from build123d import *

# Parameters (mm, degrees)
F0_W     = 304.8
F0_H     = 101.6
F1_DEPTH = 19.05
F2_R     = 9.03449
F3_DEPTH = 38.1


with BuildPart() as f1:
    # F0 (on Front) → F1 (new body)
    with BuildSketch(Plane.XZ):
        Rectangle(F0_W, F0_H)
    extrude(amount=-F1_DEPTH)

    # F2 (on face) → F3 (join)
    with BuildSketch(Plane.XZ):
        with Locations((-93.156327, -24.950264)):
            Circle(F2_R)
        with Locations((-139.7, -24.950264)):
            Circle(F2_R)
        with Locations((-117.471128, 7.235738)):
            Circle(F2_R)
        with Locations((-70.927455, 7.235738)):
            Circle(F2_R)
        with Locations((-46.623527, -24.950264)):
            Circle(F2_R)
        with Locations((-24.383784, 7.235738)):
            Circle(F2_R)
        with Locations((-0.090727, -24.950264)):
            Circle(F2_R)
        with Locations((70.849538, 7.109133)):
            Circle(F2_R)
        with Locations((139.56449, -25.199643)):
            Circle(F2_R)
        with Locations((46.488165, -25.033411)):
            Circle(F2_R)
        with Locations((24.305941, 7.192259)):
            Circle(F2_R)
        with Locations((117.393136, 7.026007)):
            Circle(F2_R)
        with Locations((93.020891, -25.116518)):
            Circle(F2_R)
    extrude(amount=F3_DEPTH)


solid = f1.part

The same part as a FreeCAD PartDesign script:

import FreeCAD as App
import Part
import Sketcher
from FreeCAD import Vector
Q = App.Units.Quantity

doc = App.newDocument("Part")
params = doc.addObject("Spreadsheet::Sheet", "Params")
for row, (alias, value) in enumerate([
    ("sketch1_width", "12 in"),
    ("sketch1_height", "4 in"),
    ("pad1_length", "0.75 in"),
    ("pad2_length", "1.5 in"),
], start=1):
    params.set(f"A{row}", alias)
    params.set(f"B{row}", "=" + value)
    params.setAlias(f"B{row}", alias)

body = doc.addObject("PartDesign::Body", "Body")

sketch1 = body.newObject("Sketcher::SketchObject", "Sketch")
sketch1.AttachmentSupport = (doc.getObject("XZ_Plane"), [""])
sketch1.MapMode = "FlatFace"
sketch1.addGeometry([
    Part.LineSegment(Vector(-152.4, 50.8, 0), Vector(-152.4, -50.8, 0)),
    Part.LineSegment(Vector(-152.4, -50.8, 0), Vector(152.4, -50.8, 0)),
    Part.LineSegment(Vector(152.4, -50.8, 0), Vector(152.4, 50.8, 0)),
    Part.LineSegment(Vector(152.4, 50.8, 0), Vector(-152.4, 50.8, 0)),
], False)
sketch1.addConstraint([
    Sketcher.Constraint("Coincident", 0, 2, 1, 1),
    Sketcher.Constraint("Coincident", 1, 2, 2, 1),
    Sketcher.Constraint("Coincident", 2, 2, 3, 1),
    Sketcher.Constraint("Coincident", 3, 2, 0, 1),
    Sketcher.Constraint("Vertical", 0),
    Sketcher.Constraint("Horizontal", 1),
    Sketcher.Constraint("Vertical", 2),
    Sketcher.Constraint("Horizontal", 3),
    Sketcher.Constraint("Symmetric", 0, 2, 2, 2, -1, 1),
    Sketcher.Constraint("DistanceX", 1, 1, 1, 2, Q("12 in")),
    Sketcher.Constraint("DistanceY", 0, 2, 0, 1, Q("4 in")),
])
sketch1.setExpression("Constraints[9]", "Params.sketch1_width")
sketch1.setExpression("Constraints[10]", "Params.sketch1_height")
pad1 = body.newObject("PartDesign::Pad", "Pad")
pad1.Profile = sketch1
pad1.setExpression("Length", "Params.pad1_length")
pad1.Reversed = True

sketch2 = body.newObject("Sketcher::SketchObject", "Sketch001")
sketch2.AttachmentSupport = (doc.getObject("XZ_Plane"), [""])
sketch2.MapMode = "FlatFace"
sketch2.addGeometry([
    Part.Circle(Vector(-93.156327, -24.950264, 0), Vector(0, 0, 1), 9.03449),
    Part.Circle(Vector(-139.7, -24.950264, 0), Vector(0, 0, 1), 9.03449),
    Part.Circle(Vector(-117.471128, 7.235738, 0), Vector(0, 0, 1), 9.03449),
    Part.Circle(Vector(-70.927455, 7.235738, 0), Vector(0, 0, 1), 9.03449),
    Part.Circle(Vector(-46.623527, -24.950264, 0), Vector(0, 0, 1), 9.03449),
    Part.Circle(Vector(-24.383784, 7.235738, 0), Vector(0, 0, 1), 9.03449),
    Part.Circle(Vector(-0.090727, -24.950264, 0), Vector(0, 0, 1), 9.03449),
    Part.Circle(Vector(70.849538, 7.109133, 0), Vector(0, 0, 1), 9.03449),
    Part.Circle(Vector(139.56449, -25.199643, 0), Vector(0, 0, 1), 9.03449),
    Part.Circle(Vector(46.488165, -25.033411, 0), Vector(0, 0, 1), 9.03449),
    Part.Circle(Vector(24.305941, 7.192259, 0), Vector(0, 0, 1), 9.03449),
    Part.Circle(Vector(117.393136, 7.026007, 0), Vector(0, 0, 1), 9.03449),
    Part.Circle(Vector(93.020891, -25.116518, 0), Vector(0, 0, 1), 9.03449),
], False)
sketch2.addConstraint([
    Sketcher.Constraint("Equal", 0, 1),
    Sketcher.Constraint("Equal", 1, 2),
    Sketcher.Constraint("Equal", 2, 3),
    Sketcher.Constraint("Equal", 3, 4),
    Sketcher.Constraint("Equal", 4, 5),
    Sketcher.Constraint("Equal", 5, 6),
    Sketcher.Constraint("Equal", 6, 7),
    Sketcher.Constraint("Equal", 7, 8),
    Sketcher.Constraint("Equal", 8, 9),
    Sketcher.Constraint("Equal", 9, 10),
    Sketcher.Constraint("Equal", 10, 11),
    Sketcher.Constraint("Equal", 11, 12),
    Sketcher.Constraint("Horizontal", 0, 3, 1, 3),
    Sketcher.Constraint("Horizontal", 2, 3, 3, 3),
    Sketcher.Constraint("Horizontal", 1, 3, 4, 3),
    Sketcher.Constraint("Horizontal", 3, 3, 5, 3),
    Sketcher.Constraint("Horizontal", 4, 3, 6, 3),
    Sketcher.Constraint("DistanceX", 1, 3, -1, 1, Q("5.5 in")),
    Sketcher.Constraint("Diameter", 0, 18.06898),
    Sketcher.Constraint("DistanceX", 0, 3, 4, 3, Q("1.832 in")),
    Sketcher.Constraint("DistanceX", 4, 3, 6, 3, Q("1.832 in")),
    Sketcher.Constraint("DistanceX", 2, 3, 0, 3, 24.314801),
    Sketcher.Constraint("DistanceX", 7, 3, 11, 3, 46.543598),
    Sketcher.Constraint("DistanceX", 12, 3, 8, 3, 46.543599),
    Sketcher.Constraint("DistanceX", -1, 1, 8, 3, 139.56449),
    Sketcher.Constraint("DistanceY", 9, 3, -1, 1, 25.033411),
    Sketcher.Constraint("DistanceX", -1, 1, 10, 3, 24.305941),
    Sketcher.Constraint("DistanceY", -1, 1, 10, 3, 7.192259),
    Sketcher.Constraint("DistanceX", 1, 3, 2, 3, 22.228872),
    Sketcher.Constraint("DistanceX", 3, 3, 5, 3, 46.543671),
    Sketcher.Constraint("DistanceX", 5, 3, 7, 3, 95.233322),
    Sketcher.Constraint("DistanceY", 8, 3, 6, 3, 0.249379),
    Sketcher.Constraint("DistanceY", 8, 3, 5, 3, 32.435381),
    Sketcher.Constraint("DistanceX", 5, 3, 9, 3, 70.871949),
    Sketcher.Constraint("DistanceY", 9, 3, 5, 3, 32.269149),
    Sketcher.Constraint("DistanceY", 8, 3, 11, 3, 32.22565),
    Sketcher.Constraint("DistanceY", 12, 3, 7, 3, 32.225651),
    Sketcher.Constraint("DistanceX", 3, 3, -1, 1, 70.927455),
    Sketcher.Constraint("DistanceY", -1, 1, 7, 3, 7.109133),
])
pad2 = body.newObject("PartDesign::Pad", "Pad001")
pad2.Profile = sketch2
pad2.setExpression("Length", "Params.pad2_length")

doc.recompute()
